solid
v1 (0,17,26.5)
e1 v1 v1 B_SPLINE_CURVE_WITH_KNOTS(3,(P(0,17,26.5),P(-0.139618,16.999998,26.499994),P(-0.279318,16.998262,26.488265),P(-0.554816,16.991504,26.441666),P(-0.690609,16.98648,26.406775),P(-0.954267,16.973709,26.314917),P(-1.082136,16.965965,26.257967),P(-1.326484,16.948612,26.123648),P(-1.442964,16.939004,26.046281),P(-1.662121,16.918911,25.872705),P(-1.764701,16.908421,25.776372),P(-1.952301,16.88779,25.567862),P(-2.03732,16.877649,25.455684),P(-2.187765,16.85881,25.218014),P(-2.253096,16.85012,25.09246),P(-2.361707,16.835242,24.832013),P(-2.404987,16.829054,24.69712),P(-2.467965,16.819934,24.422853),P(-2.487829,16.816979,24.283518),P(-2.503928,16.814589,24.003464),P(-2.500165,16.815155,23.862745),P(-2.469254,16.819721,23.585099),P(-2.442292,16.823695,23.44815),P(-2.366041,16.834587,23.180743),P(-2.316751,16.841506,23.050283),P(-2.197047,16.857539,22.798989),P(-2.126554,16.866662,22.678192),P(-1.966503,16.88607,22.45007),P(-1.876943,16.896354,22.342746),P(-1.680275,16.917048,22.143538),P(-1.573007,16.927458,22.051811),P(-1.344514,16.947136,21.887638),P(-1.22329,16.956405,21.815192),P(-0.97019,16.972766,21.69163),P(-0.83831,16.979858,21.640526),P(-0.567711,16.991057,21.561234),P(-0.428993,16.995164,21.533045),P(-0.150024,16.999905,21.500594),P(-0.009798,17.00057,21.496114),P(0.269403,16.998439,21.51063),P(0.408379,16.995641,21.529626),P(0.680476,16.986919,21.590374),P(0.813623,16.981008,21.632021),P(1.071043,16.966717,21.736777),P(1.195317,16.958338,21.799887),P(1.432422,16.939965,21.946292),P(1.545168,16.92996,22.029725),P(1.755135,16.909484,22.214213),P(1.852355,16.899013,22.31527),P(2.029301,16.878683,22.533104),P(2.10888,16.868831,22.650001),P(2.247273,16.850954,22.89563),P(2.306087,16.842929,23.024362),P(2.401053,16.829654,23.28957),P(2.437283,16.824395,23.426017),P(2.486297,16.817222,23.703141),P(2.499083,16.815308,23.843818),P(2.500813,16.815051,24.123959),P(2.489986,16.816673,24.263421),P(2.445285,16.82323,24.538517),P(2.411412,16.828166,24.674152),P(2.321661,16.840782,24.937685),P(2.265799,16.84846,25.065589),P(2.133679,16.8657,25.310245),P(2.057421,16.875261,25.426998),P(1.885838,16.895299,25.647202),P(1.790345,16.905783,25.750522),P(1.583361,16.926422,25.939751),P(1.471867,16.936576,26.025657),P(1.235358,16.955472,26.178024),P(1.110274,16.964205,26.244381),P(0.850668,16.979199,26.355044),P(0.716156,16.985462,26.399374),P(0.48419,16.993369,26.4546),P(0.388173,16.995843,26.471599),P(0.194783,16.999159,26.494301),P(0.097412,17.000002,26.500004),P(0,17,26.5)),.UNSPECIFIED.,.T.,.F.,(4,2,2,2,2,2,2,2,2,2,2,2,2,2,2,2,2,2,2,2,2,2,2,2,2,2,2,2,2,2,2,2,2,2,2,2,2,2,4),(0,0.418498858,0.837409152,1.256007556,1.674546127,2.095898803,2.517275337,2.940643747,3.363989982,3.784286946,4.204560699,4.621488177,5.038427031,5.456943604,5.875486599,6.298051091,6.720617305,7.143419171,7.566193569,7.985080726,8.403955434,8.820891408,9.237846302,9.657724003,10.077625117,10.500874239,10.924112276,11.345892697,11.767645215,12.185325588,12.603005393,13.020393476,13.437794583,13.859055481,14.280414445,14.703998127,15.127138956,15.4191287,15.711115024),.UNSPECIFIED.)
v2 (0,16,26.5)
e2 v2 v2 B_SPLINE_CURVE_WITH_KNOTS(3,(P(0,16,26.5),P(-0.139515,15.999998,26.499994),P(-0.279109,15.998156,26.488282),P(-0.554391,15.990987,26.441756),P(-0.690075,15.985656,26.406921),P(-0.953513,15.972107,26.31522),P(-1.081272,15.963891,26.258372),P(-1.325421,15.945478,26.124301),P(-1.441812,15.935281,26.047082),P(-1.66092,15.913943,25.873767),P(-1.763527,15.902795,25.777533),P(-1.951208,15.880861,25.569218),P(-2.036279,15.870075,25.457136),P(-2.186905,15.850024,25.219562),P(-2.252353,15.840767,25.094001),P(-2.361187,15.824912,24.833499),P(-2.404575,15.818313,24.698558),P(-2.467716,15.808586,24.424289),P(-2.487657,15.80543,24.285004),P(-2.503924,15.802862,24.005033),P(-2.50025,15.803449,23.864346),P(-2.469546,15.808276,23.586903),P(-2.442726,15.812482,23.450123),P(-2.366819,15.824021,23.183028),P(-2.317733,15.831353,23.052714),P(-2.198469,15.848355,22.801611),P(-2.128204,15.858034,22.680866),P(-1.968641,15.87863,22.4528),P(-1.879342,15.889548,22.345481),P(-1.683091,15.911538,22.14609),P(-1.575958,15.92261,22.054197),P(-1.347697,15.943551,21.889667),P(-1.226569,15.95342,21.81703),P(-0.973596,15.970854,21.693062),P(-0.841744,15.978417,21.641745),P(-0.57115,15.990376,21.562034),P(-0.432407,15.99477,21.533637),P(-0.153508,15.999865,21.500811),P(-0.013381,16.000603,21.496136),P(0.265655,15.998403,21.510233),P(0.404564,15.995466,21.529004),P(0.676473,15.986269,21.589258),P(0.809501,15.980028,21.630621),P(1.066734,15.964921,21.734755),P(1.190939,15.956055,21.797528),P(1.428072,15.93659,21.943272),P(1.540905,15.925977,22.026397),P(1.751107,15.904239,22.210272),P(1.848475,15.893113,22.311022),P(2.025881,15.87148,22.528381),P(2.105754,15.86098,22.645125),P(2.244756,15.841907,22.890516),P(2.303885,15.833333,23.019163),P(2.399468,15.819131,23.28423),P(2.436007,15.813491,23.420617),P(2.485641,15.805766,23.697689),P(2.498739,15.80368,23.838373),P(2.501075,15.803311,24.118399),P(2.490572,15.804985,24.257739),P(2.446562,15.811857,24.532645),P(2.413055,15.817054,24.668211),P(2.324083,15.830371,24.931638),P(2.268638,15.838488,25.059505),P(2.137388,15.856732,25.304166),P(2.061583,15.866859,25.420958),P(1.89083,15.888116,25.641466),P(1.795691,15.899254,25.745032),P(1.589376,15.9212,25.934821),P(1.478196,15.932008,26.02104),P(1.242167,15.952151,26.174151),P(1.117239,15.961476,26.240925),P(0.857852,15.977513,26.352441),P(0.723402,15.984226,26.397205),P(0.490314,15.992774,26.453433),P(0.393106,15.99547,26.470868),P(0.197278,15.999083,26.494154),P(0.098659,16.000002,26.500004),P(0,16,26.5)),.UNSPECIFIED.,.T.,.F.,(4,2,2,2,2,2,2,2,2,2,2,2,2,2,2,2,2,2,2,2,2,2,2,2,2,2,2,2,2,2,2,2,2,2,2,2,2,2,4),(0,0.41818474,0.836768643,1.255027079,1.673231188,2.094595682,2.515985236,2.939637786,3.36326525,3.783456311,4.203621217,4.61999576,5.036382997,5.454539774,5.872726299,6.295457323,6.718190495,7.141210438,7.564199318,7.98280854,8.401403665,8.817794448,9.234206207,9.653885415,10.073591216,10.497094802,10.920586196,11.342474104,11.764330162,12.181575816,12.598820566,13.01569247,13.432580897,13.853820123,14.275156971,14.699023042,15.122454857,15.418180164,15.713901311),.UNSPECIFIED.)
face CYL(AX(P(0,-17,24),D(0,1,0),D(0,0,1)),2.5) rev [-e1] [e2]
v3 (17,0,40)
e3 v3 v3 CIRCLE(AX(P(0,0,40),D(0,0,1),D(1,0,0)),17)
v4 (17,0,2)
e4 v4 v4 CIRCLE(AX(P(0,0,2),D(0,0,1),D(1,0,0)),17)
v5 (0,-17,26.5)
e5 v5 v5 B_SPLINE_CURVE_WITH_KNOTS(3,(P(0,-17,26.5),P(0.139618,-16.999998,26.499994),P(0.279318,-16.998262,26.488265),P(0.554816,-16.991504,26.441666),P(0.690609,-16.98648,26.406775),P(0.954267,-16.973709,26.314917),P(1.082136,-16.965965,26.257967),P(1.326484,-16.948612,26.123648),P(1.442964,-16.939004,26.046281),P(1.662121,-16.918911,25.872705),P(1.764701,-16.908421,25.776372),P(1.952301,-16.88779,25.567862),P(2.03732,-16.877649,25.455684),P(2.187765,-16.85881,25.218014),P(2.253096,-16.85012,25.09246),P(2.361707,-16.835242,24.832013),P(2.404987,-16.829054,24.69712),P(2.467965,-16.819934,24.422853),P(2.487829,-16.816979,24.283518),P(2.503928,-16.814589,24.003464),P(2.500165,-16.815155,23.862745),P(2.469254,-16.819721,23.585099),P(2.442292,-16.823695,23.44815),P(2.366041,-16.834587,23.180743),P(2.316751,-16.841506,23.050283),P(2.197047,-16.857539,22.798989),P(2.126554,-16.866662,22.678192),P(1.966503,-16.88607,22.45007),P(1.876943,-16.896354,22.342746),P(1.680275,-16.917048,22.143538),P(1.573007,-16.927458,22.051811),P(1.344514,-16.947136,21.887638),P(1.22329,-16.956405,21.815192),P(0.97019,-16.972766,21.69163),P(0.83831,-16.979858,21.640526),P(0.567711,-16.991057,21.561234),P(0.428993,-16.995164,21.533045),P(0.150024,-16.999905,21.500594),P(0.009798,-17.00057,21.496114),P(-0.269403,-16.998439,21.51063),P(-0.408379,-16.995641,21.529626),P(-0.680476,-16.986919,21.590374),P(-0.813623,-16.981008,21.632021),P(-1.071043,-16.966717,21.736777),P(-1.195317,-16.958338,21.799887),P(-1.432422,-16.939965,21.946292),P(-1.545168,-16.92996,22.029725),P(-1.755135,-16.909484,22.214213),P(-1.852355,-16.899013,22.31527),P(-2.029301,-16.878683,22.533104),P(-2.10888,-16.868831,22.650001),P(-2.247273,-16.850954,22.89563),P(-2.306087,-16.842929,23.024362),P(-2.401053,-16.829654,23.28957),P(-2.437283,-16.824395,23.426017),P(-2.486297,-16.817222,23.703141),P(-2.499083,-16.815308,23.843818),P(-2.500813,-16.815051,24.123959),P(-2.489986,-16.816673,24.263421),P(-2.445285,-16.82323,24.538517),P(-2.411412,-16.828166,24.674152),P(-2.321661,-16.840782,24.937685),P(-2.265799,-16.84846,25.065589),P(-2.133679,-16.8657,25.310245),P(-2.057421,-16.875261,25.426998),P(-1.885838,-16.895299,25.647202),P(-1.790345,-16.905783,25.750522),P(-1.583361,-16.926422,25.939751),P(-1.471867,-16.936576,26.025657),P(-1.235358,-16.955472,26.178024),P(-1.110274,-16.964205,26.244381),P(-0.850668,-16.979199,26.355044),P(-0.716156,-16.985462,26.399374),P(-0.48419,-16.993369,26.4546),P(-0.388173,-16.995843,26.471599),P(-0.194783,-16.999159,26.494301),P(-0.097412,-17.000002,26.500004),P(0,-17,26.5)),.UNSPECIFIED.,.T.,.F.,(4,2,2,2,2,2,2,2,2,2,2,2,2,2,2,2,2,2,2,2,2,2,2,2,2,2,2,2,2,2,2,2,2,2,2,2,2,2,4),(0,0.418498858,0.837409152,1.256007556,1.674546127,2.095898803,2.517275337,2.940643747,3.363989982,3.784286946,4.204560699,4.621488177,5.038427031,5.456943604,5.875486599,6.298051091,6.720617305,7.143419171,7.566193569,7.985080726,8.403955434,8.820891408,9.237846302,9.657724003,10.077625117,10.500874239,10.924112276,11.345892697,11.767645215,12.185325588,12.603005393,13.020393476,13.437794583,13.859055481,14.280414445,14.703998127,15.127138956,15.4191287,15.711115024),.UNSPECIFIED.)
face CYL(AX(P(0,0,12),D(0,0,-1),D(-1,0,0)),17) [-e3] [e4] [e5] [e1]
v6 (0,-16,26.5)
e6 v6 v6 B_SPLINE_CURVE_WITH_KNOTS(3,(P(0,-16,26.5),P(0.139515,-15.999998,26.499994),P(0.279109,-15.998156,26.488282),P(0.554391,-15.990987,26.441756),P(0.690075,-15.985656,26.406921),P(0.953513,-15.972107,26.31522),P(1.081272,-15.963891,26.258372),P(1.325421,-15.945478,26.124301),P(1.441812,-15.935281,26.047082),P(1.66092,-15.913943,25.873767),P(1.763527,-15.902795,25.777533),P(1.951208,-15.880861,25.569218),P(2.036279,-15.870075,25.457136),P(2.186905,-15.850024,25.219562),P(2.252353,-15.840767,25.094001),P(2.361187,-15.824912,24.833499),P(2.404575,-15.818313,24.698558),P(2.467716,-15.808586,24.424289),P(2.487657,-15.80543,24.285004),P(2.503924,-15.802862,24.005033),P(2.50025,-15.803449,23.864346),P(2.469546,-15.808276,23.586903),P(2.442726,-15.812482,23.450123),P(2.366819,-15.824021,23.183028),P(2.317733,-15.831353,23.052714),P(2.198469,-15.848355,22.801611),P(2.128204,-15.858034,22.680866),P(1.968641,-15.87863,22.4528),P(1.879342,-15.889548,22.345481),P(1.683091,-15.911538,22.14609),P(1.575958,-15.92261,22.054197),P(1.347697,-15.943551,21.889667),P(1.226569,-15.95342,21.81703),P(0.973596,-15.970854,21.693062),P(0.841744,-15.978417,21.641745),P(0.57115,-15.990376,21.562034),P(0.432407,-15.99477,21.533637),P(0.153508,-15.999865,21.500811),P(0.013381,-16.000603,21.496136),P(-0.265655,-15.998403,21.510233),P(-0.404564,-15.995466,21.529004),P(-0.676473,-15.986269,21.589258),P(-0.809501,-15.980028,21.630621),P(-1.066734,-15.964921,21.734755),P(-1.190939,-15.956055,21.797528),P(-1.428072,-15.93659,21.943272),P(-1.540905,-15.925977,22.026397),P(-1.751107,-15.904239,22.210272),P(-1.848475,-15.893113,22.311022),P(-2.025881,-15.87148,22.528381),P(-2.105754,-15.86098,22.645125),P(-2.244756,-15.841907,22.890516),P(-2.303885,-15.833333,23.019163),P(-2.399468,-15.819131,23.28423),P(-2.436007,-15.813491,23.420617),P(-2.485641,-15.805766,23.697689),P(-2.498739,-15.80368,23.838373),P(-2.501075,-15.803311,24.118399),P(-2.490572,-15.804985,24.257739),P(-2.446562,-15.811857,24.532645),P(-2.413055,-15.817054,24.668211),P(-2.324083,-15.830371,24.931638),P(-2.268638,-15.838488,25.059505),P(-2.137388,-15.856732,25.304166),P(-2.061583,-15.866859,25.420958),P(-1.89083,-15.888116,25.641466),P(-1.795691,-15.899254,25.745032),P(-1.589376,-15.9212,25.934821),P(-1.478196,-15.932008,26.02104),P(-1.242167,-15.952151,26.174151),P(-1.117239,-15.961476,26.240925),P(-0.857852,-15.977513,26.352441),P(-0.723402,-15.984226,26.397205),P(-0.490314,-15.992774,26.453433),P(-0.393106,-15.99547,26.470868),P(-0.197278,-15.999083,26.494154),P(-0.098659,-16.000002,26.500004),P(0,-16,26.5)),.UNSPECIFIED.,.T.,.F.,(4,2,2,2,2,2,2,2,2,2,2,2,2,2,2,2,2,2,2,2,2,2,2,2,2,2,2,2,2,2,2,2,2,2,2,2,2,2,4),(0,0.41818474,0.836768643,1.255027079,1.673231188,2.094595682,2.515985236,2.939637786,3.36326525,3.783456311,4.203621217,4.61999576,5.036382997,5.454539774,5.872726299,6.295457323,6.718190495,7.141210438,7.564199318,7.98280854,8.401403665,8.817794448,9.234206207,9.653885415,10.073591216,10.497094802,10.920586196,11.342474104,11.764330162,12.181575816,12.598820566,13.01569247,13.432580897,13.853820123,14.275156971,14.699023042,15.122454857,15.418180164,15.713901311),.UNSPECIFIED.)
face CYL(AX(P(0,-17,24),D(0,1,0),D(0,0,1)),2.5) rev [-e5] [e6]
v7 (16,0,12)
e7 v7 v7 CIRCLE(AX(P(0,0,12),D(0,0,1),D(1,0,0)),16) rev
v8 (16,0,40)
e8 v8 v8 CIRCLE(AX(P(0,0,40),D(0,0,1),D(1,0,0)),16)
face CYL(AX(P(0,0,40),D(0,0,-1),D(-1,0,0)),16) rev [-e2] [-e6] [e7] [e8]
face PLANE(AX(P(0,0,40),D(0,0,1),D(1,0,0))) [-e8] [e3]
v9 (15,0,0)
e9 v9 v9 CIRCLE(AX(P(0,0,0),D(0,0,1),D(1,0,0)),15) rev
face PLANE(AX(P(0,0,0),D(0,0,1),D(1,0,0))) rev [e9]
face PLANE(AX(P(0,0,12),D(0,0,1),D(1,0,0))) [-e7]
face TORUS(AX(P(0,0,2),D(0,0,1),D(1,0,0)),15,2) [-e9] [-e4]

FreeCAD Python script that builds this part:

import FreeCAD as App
import Part
import Sketcher
Q = App.Units.Quantity


def edges_at(feature, points):
    """Names of the edges that pass closest to the given points."""
    edges = feature.Shape.Edges
    near = lambda p: min(range(len(edges)), key=lambda i: edges[i].distToShape(Part.Vertex(*p))[0])
    return sorted({f"Edge{near(p) + 1}" for p in points})

doc = App.newDocument("Part")
body = doc.addObject("PartDesign::Body", "Body")

# Sketch on XY plane
sketch1 = body.newObject("Sketcher::SketchObject", "Sketch")
sketch1.AttachmentSupport = (doc.getObject("XY_Plane"), [""])
sketch1.MapMode = "FlatFace"
sketch1.addGeometry(Part.Circle(App.Vector(0, 0, 0), App.Vector(0, 0, 1), 17), False)
sketch1.addConstraint([
    Sketcher.Constraint("Coincident", 0, 3, -1, 1),
    Sketcher.Constraint("Diameter", 0, Q("34 mm")),
])
pad1 = body.newObject("PartDesign::Pad", "Pad")
pad1.Profile = sketch1
pad1.Length = 12

# Sketch on XY plane
sketch2 = body.newObject("Sketcher::SketchObject", "Sketch001")
sketch2.AttachmentSupport = (doc.getObject("XY_Plane"), [""])
sketch2.MapMode = "FlatFace"
sketch2.AttachmentOffset = App.Placement(App.Vector(0, 0, 12), App.Rotation())
sketch2.addGeometry([
    Part.Circle(App.Vector(0, 0, 0), App.Vector(0, 0, 1), 17),
    Part.Circle(App.Vector(0, 0, 0), App.Vector(0, 0, 1), 16),
], False)
sketch2.addConstraint([
    Sketcher.Constraint("Coincident", 0, 3, -1, 1),
    Sketcher.Constraint("Coincident", 1, 3, -1, 1),
    Sketcher.Constraint("Diameter", 0, Q("34 mm")),
    Sketcher.Constraint("Diameter", 1, Q("32 mm")),
])
pad2 = body.newObject("PartDesign::Pad", "Pad001")
pad2.Profile = sketch2
pad2.Length = 28

# Sketch on XZ plane
sketch3 = body.newObject("Sketcher::SketchObject", "Sketch002")
sketch3.AttachmentSupport = (doc.getObject("XZ_Plane"), [""])
sketch3.MapMode = "FlatFace"
sketch3.addGeometry(Part.Circle(App.Vector(0, 24, 0), App.Vector(0, 0, 1), 2.5), False)
sketch3.addConstraint([
    Sketcher.Constraint("PointOnObject", 0, 3, -2),
    Sketcher.Constraint("Diameter", 0, Q("5 mm")),
    Sketcher.Constraint("DistanceY", -1, 1, 0, 3, Q("24 mm")),
])
pocket1 = body.newObject("PartDesign::Pocket", "Pocket")
pocket1.Profile = sketch3
pocket1.Type = "ThroughAll"
pocket1.Midplane = True
doc.recompute()

fillet = body.newObject("PartDesign::Fillet", "Fillet")
fillet.Base = (pocket1, edges_at(pocket1, [(-17, 0, 0)]))
fillet.Radius = 2

doc.recompute()
